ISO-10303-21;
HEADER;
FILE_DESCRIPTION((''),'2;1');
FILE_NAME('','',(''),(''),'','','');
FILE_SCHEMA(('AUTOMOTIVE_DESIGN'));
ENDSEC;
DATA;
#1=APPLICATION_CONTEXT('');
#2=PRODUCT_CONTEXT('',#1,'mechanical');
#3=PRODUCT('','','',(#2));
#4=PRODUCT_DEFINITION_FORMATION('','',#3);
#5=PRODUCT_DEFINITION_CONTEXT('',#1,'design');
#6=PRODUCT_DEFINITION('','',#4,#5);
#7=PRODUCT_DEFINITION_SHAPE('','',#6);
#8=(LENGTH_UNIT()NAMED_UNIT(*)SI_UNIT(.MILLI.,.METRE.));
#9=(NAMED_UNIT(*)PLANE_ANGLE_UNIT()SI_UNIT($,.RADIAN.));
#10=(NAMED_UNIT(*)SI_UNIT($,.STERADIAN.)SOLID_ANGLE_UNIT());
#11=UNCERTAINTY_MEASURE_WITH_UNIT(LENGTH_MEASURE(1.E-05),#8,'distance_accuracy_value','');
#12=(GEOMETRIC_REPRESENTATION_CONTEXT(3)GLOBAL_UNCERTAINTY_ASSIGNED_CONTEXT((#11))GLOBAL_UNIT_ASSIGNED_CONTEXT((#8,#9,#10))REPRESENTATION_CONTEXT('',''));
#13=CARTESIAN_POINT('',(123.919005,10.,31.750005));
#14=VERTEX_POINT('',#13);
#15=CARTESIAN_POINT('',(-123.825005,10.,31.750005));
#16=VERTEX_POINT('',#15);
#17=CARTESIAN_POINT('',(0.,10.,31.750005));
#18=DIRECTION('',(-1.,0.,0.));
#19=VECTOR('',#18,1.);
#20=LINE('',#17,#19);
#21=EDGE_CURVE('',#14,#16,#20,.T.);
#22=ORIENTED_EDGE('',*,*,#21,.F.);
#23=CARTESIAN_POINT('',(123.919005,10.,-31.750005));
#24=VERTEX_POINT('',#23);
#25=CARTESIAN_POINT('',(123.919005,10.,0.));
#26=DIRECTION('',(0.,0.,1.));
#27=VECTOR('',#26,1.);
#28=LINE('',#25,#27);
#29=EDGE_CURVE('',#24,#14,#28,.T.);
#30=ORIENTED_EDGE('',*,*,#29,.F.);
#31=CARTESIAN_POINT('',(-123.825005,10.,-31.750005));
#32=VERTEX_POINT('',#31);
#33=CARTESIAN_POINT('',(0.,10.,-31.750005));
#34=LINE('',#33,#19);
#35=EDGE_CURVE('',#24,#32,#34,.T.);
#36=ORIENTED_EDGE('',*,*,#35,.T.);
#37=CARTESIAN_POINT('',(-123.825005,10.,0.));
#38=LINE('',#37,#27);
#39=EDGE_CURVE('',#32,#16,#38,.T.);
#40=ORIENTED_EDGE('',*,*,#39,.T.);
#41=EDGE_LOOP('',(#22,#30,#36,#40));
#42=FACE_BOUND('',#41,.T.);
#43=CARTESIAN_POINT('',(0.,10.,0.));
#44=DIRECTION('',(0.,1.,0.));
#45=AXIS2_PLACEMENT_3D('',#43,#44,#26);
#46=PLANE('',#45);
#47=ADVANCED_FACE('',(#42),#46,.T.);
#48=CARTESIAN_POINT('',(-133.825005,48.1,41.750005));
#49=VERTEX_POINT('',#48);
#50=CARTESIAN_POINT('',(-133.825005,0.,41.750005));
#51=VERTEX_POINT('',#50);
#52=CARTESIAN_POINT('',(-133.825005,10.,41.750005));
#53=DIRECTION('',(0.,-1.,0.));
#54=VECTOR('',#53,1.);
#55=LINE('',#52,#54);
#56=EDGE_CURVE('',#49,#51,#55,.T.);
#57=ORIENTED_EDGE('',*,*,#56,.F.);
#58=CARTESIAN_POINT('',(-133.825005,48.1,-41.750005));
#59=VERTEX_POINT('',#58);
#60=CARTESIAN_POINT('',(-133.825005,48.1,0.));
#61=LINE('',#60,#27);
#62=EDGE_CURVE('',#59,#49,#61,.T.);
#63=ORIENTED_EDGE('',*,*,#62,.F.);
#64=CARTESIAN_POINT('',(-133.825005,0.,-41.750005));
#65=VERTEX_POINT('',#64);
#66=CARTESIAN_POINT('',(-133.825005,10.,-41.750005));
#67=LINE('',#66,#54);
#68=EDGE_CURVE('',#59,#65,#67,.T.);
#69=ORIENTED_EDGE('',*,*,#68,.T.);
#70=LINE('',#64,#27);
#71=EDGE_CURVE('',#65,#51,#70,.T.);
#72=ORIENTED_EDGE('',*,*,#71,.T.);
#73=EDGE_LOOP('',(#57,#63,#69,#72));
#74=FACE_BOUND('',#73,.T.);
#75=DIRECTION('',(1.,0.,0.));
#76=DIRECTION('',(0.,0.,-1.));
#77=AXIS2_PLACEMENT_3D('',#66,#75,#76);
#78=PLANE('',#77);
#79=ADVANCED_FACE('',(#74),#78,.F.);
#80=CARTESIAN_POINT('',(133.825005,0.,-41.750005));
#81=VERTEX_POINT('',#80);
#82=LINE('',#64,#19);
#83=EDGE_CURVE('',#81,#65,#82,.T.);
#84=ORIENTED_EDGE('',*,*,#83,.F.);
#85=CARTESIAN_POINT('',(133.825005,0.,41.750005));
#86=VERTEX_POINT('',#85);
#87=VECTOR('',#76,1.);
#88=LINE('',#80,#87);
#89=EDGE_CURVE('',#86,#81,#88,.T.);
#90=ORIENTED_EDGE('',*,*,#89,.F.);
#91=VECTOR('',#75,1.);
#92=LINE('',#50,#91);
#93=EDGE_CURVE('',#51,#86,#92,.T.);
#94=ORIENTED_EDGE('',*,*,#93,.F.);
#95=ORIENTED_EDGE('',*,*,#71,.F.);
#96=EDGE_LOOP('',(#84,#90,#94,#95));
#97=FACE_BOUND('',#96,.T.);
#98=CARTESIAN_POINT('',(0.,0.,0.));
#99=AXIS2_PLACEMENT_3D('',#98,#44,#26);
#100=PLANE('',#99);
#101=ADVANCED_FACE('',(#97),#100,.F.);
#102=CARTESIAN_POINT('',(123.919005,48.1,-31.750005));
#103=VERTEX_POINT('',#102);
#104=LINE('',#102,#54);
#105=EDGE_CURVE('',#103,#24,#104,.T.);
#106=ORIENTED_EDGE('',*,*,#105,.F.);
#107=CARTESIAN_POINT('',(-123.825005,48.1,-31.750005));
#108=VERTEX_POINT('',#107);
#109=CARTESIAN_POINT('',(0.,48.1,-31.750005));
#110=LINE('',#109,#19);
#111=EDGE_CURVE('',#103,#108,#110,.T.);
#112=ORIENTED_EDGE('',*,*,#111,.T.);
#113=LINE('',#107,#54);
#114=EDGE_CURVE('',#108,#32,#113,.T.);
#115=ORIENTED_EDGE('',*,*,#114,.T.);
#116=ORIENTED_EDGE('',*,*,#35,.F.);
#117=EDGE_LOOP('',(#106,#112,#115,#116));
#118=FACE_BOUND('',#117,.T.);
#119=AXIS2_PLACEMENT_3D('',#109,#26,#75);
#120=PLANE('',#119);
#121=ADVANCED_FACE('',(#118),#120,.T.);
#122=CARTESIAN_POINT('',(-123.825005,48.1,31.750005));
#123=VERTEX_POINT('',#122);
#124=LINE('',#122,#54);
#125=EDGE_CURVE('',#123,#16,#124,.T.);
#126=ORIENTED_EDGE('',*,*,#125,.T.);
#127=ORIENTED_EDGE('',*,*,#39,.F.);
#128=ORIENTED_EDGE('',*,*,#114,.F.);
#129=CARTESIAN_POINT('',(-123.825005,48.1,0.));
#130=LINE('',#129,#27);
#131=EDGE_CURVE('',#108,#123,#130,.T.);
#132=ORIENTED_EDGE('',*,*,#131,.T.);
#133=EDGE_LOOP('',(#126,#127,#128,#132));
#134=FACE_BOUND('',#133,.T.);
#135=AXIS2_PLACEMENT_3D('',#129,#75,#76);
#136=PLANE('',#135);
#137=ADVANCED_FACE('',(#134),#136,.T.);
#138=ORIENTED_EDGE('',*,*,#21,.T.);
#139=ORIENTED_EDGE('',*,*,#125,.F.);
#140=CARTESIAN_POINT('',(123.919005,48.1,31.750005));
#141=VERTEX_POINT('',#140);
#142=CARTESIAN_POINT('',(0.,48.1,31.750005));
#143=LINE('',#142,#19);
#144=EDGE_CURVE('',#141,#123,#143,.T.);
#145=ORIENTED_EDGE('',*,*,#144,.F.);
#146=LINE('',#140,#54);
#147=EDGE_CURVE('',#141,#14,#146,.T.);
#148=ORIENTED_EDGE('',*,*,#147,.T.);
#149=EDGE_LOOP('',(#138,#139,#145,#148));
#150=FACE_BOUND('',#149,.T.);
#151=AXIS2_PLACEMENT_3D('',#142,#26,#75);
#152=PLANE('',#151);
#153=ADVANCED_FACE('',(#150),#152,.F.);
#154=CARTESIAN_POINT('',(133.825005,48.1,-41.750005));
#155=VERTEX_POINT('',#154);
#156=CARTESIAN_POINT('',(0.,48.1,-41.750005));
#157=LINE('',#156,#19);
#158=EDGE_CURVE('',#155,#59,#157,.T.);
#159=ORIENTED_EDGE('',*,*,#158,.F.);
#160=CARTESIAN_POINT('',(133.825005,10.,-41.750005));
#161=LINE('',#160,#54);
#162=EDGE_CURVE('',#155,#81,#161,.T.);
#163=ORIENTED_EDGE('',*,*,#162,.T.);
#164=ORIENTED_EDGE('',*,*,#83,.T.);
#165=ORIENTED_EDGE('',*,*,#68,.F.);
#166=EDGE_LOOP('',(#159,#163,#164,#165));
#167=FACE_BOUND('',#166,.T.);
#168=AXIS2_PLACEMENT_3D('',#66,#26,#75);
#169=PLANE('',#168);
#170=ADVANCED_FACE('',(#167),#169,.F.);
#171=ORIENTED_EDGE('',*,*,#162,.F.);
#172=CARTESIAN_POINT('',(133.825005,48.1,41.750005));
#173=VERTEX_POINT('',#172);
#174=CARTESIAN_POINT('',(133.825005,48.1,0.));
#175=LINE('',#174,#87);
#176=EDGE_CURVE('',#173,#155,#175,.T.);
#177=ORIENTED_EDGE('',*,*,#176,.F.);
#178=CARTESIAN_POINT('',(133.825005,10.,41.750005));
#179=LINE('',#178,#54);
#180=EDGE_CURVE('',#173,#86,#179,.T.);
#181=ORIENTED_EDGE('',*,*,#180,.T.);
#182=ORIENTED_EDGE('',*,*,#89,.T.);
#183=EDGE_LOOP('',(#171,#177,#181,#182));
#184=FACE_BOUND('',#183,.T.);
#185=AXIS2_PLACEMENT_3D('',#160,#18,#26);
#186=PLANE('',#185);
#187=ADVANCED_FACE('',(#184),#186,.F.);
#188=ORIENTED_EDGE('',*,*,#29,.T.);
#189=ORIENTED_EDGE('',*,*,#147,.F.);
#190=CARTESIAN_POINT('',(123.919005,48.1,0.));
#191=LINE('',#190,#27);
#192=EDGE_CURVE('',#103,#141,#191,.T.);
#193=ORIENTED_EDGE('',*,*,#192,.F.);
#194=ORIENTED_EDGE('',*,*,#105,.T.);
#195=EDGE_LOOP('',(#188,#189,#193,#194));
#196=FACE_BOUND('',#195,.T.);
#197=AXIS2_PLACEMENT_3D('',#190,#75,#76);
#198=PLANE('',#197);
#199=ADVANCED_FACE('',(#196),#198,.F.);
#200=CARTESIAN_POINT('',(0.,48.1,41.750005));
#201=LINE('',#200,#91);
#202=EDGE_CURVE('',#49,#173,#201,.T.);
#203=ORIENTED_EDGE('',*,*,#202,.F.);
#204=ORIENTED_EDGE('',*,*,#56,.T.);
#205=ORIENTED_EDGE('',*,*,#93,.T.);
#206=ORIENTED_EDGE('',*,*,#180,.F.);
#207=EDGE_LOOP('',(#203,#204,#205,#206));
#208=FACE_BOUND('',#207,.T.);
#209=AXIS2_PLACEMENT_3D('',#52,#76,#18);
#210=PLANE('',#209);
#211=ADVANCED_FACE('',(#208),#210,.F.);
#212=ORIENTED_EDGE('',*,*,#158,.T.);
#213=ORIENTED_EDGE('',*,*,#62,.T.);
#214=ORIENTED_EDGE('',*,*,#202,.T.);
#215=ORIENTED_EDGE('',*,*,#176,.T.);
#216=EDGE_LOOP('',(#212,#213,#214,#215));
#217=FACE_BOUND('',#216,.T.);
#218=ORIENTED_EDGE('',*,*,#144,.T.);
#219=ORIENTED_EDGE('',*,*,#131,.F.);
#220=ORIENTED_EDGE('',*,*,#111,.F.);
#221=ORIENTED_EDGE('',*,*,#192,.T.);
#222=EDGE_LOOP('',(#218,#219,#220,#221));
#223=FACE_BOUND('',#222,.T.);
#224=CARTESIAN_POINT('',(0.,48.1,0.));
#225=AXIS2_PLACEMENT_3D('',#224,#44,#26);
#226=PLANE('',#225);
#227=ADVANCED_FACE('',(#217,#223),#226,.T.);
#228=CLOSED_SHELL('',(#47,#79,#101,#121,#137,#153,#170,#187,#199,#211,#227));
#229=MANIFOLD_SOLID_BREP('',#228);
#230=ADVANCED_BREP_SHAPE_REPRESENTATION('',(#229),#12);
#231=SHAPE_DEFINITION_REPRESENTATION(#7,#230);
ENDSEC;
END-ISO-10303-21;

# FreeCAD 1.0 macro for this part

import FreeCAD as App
import Part
import Sketcher

V = App.Vector


def add_polygon(sketch, points):
    """Adds a closed chain of lines whose ends are joined by coincident constraints."""
    first, n = sketch.GeometryCount, len(points)
    for a, b in zip(points, points[1:] + points[:1]):
        sketch.addGeometry(Part.LineSegment(App.Vector(*a, 0), App.Vector(*b, 0)), False)
    for i in range(n):
        sketch.addConstraint(Sketcher.Constraint("Coincident", first + i, 2, first + (i + 1) % n, 1))

doc = App.newDocument("Part")
params = doc.addObject("Spreadsheet::Sheet", "Params")
for row, (alias, value) in enumerate([
    ("pad1_length", "10 mm"),
    ("pad2_length", "38.1 mm"),
], start=1):
    params.set(f"A{row}", alias)
    params.set(f"B{row}", "=" + value)
    params.setAlias(f"B{row}", alias)

body = doc.addObject("PartDesign::Body", "Body")

sketch1 = body.newObject("Sketcher::SketchObject", "Sketch")
sketch1.AttachmentSupport = (doc.getObject("XZ_Plane"), [""])
sketch1.MapMode = "FlatFace"
add_polygon(sketch1, [(-134, -42), (-134, 42), (134, 42), (134, -42)])
sketch1.addConstraint(Sketcher.Constraint("Vertical", 0))
sketch1.addConstraint(Sketcher.Constraint("Horizontal", 1))
sketch1.addConstraint(Sketcher.Constraint("Vertical", 2))
sketch1.addConstraint(Sketcher.Constraint("Horizontal", 3))
sketch1.addConstraint(Sketcher.Constraint("Symmetric", 0, 2, 2, 2, -1, 1))
sketch1.addConstraint(Sketcher.Constraint("DistanceX", 1, 1, 1, 2, 267.650011))
sketch1.addConstraint(Sketcher.Constraint("DistanceY", 0, 1, 0, 2, 83.500011))
pad1 = body.newObject("PartDesign::Pad", "Pad")
pad1.Profile = sketch1
pad1.setExpression("Length", "Params.pad1_length")
pad1.Reversed = True

sketch2 = body.newObject("Sketcher::SketchObject", "Sketch001")
sketch2.AttachmentSupport = (doc.getObject("XZ_Plane"), [""])
sketch2.MapMode = "FlatFace"
sketch2.AttachmentOffset = App.Placement(V(0, 0, -10), App.Rotation())
add_polygon(sketch2, [(-134, -42), (-134, 42), (134, 42), (134, -42)])
add_polygon(sketch2, [(124, 32), (-124, 32), (-124, -32), (124, -32)])
sketch2.addConstraint(Sketcher.Constraint("Vertical", 0))
sketch2.addConstraint(Sketcher.Constraint("Horizontal", 1))
sketch2.addConstraint(Sketcher.Constraint("Vertical", 2))
sketch2.addConstraint(Sketcher.Constraint("Horizontal", 3))
sketch2.addConstraint(Sketcher.Constraint("Horizontal", 4))
sketch2.addConstraint(Sketcher.Constraint("Vertical", 5))
sketch2.addConstraint(Sketcher.Constraint("Horizontal", 6))
sketch2.addConstraint(Sketcher.Constraint("Vertical", 7))
sketch2.addConstraint(Sketcher.Constraint("Symmetric", 0, 2, 2, 2, -1, 1))
sketch2.addConstraint(Sketcher.Constraint("DistanceX", 0, 2, 4, 2, 10.0))
sketch2.addConstraint(Sketcher.Constraint("DistanceY", 4, 2, 0, 2, 10.0))
sketch2.addConstraint(Sketcher.Constraint("DistanceY", 3, 2, 5, 2, 10.0))
sketch2.addConstraint(Sketcher.Constraint("DistanceX", 6, 2, 2, 2, 9.906))
sketch2.addConstraint(Sketcher.Constraint("DistanceX", 1, 1, 1, 2, 267.650011))
sketch2.addConstraint(Sketcher.Constraint("DistanceY", 0, 1, 0, 2, 83.500011))
pad2 = body.newObject("PartDesign::Pad", "Pad001")
pad2.Profile = sketch2
pad2.setExpression("Length", "Params.pad2_length")
pad2.Reversed = True

doc.recompute()
